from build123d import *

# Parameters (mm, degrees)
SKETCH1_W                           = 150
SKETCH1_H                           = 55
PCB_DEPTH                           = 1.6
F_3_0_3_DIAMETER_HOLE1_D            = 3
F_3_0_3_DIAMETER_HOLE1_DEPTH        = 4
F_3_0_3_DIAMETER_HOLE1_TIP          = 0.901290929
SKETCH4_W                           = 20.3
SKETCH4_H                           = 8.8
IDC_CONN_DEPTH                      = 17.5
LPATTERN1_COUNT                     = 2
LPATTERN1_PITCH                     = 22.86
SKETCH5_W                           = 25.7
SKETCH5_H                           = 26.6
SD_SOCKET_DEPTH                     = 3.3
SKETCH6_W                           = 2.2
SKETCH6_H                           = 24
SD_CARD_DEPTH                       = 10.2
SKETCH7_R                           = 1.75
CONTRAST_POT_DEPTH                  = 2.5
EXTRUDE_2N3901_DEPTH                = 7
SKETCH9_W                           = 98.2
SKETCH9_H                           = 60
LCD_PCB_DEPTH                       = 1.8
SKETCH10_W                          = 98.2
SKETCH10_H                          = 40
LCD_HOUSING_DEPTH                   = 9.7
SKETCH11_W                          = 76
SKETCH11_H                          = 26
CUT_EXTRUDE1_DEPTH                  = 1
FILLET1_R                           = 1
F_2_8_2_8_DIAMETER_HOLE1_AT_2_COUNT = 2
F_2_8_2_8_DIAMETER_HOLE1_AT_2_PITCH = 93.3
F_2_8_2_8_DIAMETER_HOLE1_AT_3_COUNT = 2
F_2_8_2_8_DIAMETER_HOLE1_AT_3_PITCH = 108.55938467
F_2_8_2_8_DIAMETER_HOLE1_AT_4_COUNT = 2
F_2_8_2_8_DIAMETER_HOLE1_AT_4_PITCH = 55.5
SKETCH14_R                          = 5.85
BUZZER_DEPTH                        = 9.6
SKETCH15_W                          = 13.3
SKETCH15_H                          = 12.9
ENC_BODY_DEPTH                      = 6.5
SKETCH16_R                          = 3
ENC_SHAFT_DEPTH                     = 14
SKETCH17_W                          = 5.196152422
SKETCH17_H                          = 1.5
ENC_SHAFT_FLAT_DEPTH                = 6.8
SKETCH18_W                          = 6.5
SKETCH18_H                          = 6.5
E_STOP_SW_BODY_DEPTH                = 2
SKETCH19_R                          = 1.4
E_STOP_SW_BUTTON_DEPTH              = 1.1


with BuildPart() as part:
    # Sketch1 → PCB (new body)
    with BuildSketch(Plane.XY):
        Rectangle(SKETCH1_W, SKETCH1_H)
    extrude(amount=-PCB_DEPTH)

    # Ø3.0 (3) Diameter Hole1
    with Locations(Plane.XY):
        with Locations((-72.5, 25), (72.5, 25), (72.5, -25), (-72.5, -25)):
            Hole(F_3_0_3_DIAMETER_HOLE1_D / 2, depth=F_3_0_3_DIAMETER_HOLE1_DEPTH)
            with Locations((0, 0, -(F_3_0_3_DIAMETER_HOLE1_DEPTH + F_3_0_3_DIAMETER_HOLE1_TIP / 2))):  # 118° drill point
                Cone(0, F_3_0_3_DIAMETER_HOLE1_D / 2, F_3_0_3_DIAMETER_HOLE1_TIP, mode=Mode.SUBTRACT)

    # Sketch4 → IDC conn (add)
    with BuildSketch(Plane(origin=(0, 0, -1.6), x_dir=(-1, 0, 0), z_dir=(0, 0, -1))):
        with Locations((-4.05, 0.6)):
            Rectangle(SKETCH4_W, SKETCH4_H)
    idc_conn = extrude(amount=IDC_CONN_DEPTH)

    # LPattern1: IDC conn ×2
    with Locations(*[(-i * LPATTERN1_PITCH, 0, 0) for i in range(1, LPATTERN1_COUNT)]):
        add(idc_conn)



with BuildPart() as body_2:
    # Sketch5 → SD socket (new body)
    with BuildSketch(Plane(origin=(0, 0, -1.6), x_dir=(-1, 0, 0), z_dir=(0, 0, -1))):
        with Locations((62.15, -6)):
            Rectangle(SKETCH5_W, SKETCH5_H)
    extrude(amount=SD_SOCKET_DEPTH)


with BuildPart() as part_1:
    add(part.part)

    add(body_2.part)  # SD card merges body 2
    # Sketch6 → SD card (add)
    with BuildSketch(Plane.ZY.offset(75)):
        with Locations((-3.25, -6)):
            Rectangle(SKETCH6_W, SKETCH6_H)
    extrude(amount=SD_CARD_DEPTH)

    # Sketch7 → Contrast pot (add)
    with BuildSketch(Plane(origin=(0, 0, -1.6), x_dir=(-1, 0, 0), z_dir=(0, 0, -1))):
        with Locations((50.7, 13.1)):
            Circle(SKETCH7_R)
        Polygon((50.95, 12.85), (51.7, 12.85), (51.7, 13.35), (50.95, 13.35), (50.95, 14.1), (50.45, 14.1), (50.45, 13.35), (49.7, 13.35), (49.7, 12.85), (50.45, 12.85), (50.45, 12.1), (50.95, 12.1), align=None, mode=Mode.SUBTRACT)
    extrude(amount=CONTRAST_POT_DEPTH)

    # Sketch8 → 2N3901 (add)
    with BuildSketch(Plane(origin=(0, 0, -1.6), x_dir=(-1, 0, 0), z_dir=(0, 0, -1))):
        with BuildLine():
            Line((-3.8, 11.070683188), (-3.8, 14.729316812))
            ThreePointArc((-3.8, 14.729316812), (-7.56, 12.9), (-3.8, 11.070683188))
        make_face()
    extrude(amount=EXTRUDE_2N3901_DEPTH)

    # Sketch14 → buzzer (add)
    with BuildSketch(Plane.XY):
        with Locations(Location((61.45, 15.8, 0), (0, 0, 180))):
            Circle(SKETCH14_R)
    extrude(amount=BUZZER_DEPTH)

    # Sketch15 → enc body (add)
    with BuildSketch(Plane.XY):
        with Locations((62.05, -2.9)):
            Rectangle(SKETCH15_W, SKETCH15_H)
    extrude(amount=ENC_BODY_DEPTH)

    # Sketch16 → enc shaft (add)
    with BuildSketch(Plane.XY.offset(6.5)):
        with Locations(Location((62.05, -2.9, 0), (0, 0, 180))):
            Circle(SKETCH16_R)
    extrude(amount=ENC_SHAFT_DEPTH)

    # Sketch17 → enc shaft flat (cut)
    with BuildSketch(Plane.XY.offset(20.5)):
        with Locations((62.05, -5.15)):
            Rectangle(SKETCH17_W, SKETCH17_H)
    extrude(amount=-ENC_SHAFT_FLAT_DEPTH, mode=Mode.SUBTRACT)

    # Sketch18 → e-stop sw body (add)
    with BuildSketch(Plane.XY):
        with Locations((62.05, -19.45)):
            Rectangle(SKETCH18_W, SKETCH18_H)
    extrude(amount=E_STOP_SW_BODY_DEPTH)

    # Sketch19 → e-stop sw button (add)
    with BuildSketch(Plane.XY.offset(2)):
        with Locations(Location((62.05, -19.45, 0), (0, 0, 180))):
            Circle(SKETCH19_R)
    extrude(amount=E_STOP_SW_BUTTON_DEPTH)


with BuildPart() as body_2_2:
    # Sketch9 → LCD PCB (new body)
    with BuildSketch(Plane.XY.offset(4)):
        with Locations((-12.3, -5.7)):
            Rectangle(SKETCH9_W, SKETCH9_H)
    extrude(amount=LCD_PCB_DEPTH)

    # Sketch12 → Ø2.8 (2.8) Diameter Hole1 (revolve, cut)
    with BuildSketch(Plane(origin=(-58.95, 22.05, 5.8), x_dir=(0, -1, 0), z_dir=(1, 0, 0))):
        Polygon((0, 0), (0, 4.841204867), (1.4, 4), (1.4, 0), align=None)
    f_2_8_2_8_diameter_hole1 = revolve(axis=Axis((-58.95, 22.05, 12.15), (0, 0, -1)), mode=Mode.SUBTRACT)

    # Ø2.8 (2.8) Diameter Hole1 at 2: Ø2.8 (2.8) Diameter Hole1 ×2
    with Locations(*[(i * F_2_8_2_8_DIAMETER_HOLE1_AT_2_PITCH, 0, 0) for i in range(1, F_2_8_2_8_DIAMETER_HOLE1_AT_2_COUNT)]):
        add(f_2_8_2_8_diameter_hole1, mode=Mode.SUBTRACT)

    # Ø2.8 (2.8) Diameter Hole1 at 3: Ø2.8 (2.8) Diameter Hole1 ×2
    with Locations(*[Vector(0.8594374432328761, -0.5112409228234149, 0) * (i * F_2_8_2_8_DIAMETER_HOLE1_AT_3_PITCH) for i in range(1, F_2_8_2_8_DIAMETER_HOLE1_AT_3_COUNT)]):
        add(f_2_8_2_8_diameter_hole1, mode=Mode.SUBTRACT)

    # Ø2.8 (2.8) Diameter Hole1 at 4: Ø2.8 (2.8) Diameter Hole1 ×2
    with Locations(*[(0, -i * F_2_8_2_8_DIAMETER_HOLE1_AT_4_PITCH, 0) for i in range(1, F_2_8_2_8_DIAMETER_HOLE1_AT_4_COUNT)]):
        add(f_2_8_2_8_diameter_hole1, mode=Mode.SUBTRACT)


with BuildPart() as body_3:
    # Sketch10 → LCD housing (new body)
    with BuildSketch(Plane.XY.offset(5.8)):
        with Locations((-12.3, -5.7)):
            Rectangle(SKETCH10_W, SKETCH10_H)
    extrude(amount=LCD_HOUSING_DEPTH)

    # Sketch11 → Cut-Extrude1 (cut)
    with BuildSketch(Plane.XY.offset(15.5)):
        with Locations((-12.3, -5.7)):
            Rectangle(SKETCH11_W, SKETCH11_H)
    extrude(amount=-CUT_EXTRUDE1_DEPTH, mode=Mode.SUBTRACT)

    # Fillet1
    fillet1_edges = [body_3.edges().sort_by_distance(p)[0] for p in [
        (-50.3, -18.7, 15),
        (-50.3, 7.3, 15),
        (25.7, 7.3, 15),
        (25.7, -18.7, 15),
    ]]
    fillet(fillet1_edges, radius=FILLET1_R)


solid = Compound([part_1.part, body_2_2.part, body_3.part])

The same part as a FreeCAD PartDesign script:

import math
import FreeCAD as App
import Part
import Sketcher

V = App.Vector
Q = App.Units.Quantity


def edges_at(feature, points):
    """Names of the edges that pass closest to the given points."""
    edges = feature.Shape.Edges
    near = lambda p: min(range(len(edges)), key=lambda i: edges[i].distToShape(Part.Vertex(*p))[0])
    return sorted({f"Edge{near(p) + 1}" for p in points})

doc = App.newDocument("Part")
body = doc.addObject("PartDesign::Body", "Body")

# Sketch on XY plane
sketch1 = doc.addObject("Sketcher::SketchObject", "Sketch")
body.addObject(sketch1)
sketch1.AttachmentSupport = (doc.XY_Plane, [""])
sketch1.MapMode = "FlatFace"
sketch1.addGeometry([
    Part.LineSegment(V(-75, 28, 0), V(-75, -28, 0)),
    Part.LineSegment(V(-75, -28, 0), V(75, -28, 0)),
    Part.LineSegment(V(75, -28, 0), V(75, 28, 0)),
    Part.LineSegment(V(75, 28, 0), V(-75, 28, 0)),
], False)
sketch1.addConstraint([
    Sketcher.Constraint("Coincident", 0, 2, 1, 1),
    Sketcher.Constraint("Coincident", 1, 2, 2, 1),
    Sketcher.Constraint("Coincident", 2, 2, 3, 1),
    Sketcher.Constraint("Coincident", 3, 2, 0, 1),
    Sketcher.Constraint("Vertical", 0),
    Sketcher.Constraint("Horizontal", 1),
    Sketcher.Constraint("Vertical", 2),
    Sketcher.Constraint("Horizontal", 3),
    Sketcher.Constraint("Symmetric", 0, 2, 2, 2, -1, 1),
    Sketcher.Constraint("DistanceX", 1, 1, 1, 2, 150.0),
    Sketcher.Constraint("DistanceY", 0, 2, 0, 1, 55.0),
])
pad1 = doc.addObject("PartDesign::Pad", "Pad")
body.addObject(pad1)
pad1.Profile = sketch1
pad1.Length = 1.6
pad1.Reversed = True

# Sketch on XY plane
sketch2 = doc.addObject("Sketcher::SketchObject", "Sketch001")
body.addObject(sketch2)
sketch2.AttachmentSupport = (doc.XY_Plane, [""])
sketch2.MapMode = "FlatFace"
sketch2.addGeometry([
    Part.Circle(V(-72.5, 25, 0), V(0, 0, 1), 1.5),
    Part.Circle(V(72.5, 25, 0), V(0, 0, 1), 1.5),
    Part.Circle(V(72.5, -25, 0), V(0, 0, 1), 1.5),
    Part.Circle(V(-72.5, -25, 0), V(0, 0, 1), 1.5),
], False)
sketch2.addConstraint([
    Sketcher.Constraint("Equal", 0, 1),
    Sketcher.Constraint("Equal", 1, 2),
    Sketcher.Constraint("Equal", 2, 3),
    Sketcher.Constraint("Symmetric", 0, 3, 2, 3, -1, 1),
    Sketcher.Constraint("Symmetric", 1, 3, 3, 3, -1, 1),
    Sketcher.Constraint("Symmetric", 0, 3, 1, 3, -2),
    Sketcher.Constraint("Diameter", 0, 3.0),
    Sketcher.Constraint("DistanceY", -1, 1, 0, 3, 25.0),
    Sketcher.Constraint("DistanceX", 0, 3, 1, 3, 145.0),
])
doc.recompute()
hole = doc.addObject("PartDesign::Hole", "Hole")
body.addObject(hole)
hole.Profile = sketch2
hole.ThreadType = "None"
hole.Diameter = 3
hole.DepthType = "Dimension"
hole.Depth = 4
hole.DrillPoint = "Angled"
hole.DrillPointAngle = 118

# Sketch on XY plane
sketch3 = doc.addObject("Sketcher::SketchObject", "Sketch002")
body.addObject(sketch3)
sketch3.AttachmentSupport = (doc.XY_Plane, [""])
sketch3.MapMode = "FlatFace"
sketch3.AttachmentOffset = App.Placement(V(0, 0, -1.6), App.Rotation())
sketch3.addGeometry([
    Part.LineSegment(V(14, 5, 0), V(14, -4, 0)),
    Part.LineSegment(V(14, -4, 0), V(-6, -4, 0)),
    Part.LineSegment(V(-6, -4, 0), V(-6, 5, 0)),
    Part.LineSegment(V(-6, 5, 0), V(14, 5, 0)),
], False)
sketch3.addConstraint([
    Sketcher.Constraint("Coincident", 0, 2, 1, 1),
    Sketcher.Constraint("Coincident", 1, 2, 2, 1),
    Sketcher.Constraint("Coincident", 2, 2, 3, 1),
    Sketcher.Constraint("Coincident", 3, 2, 0, 1),
    Sketcher.Constraint("Vertical", 0),
    Sketcher.Constraint("Horizontal", 1),
    Sketcher.Constraint("Vertical", 2),
    Sketcher.Constraint("Horizontal", 3),
    Sketcher.Constraint("DistanceX", 1, 2, 1, 1, 20.3),
    Sketcher.Constraint("DistanceY", 0, 2, 0, 1, 8.8),
    Sketcher.Constraint("DistanceY", -1, 1, 2, 2, 5.0),
    Sketcher.Constraint("DistanceX", -1, 1, 0, 2, 14.2),
])
pad2 = doc.addObject("PartDesign::Pad", "Pad001")
body.addObject(pad2)
pad2.Profile = sketch3
pad2.Length = 17.5
pad2.Reversed = True
doc.recompute()

linearpattern = doc.addObject("PartDesign::LinearPattern", "LinearPattern")
body.addObject(linearpattern)
linearpattern.Originals = [pad2]
linearpattern.Direction = (doc.X_Axis, [""])
linearpattern.Mode = "offset"
linearpattern.Offset = 22.86
linearpattern.Occurrences = 2
linearpattern.Reversed = True
body.Tip = linearpattern
body2 = doc.addObject("PartDesign::Body", "Body001")

# Sketch on XY plane
sketch4 = doc.addObject("Sketcher::SketchObject", "Sketch003")
body2.addObject(sketch4)
sketch4.AttachmentSupport = (doc.getObject("XY_Plane001"), [""])
sketch4.MapMode = "FlatFace"
sketch4.AttachmentOffset = App.Placement(V(0, 0, -1.6), App.Rotation())
sketch4.addGeometry([
    Part.LineSegment(V(-49, 7, 0), V(-49, -19, 0)),
    Part.LineSegment(V(-49, -19, 0), V(-75, -19, 0)),
    Part.LineSegment(V(-75, -19, 0), V(-75, 7, 0)),
    Part.LineSegment(V(-75, 7, 0), V(-49, 7, 0)),
], False)
sketch4.addConstraint([
    Sketcher.Constraint("Coincident", 0, 2, 1, 1),
    Sketcher.Constraint("Coincident", 1, 2, 2, 1),
    Sketcher.Constraint("Coincident", 2, 2, 3, 1),
    Sketcher.Constraint("Coincident", 3, 2, 0, 1),
    Sketcher.Constraint("Vertical", 0),
    Sketcher.Constraint("Horizontal", 1),
    Sketcher.Constraint("Vertical", 2),
    Sketcher.Constraint("Horizontal", 3),
    Sketcher.Constraint("DistanceX", 1, 2, 1, 1, 25.7),
    Sketcher.Constraint("DistanceY", 0, 2, 0, 1, 26.6),
    Sketcher.Constraint("DistanceX", 1, 2, -1, 1, 75.0),
    Sketcher.Constraint("DistanceY", 0, 2, -1, 1, 19.3),
])
pad3 = doc.addObject("PartDesign::Pad", "Pad002")
body2.addObject(pad3)
pad3.Profile = sketch4
pad3.Length = 3.3
pad3.Reversed = True
doc.recompute()

boolean = doc.addObject("PartDesign::Boolean", "Boolean")
body.addObject(boolean)
boolean.Type = "Fuse"
boolean.addObjects([body2])

# Sketch on YZ plane
sketch5 = doc.addObject("Sketcher::SketchObject", "Sketch004")
body.addObject(sketch5)
sketch5.AttachmentSupport = (doc.YZ_Plane, [""])
sketch5.MapMode = "FlatFace"
sketch5.AttachmentOffset = App.Placement(V(0, 0, -75), App.Rotation())
sketch5.addGeometry([
    Part.LineSegment(V(6, -4.3, 0), V(-18, -4.3, 0)),
    Part.LineSegment(V(-18, -4.3, 0), V(-18, -2.1, 0)),
    Part.LineSegment(V(-18, -2.1, 0), V(6, -2.1, 0)),
    Part.LineSegment(V(6, -2.1, 0), V(6, -4.3, 0)),
], False)
sketch5.addConstraint([
    Sketcher.Constraint("Coincident", 0, 2, 1, 1),
    Sketcher.Constraint("Coincident", 1, 2, 2, 1),
    Sketcher.Constraint("Coincident", 2, 2, 3, 1),
    Sketcher.Constraint("Coincident", 3, 2, 0, 1),
    Sketcher.Constraint("Horizontal", 0),
    Sketcher.Constraint("Vertical", 1),
    Sketcher.Constraint("Horizontal", 2),
    Sketcher.Constraint("Vertical", 3),
    Sketcher.Constraint("DistanceX", 0, 2, 0, 1, 24.0),
    Sketcher.Constraint("DistanceY", 1, 1, 1, 2, 2.2),
    Sketcher.Constraint("DistanceX", 0, 2, -1, 1, 18.0),
    Sketcher.Constraint("DistanceY", 0, 2, -1, 1, 4.35),
])
pad4 = doc.addObject("PartDesign::Pad", "Pad003")
body.addObject(pad4)
pad4.Profile = sketch5
pad4.Length = 10.2
pad4.Reversed = True

# Sketch on XY plane
sketch6 = doc.addObject("Sketcher::SketchObject", "Sketch005")
body.addObject(sketch6)
sketch6.AttachmentSupport = (doc.XY_Plane, [""])
sketch6.MapMode = "FlatFace"
sketch6.AttachmentOffset = App.Placement(V(0, 0, -1.6), App.Rotation())
sketch6.addGeometry([
    Part.Circle(V(-50.7, 13.1, 0), V(0, 0, 1), 1.8),  # 0
    Part.LineSegment(V(-51.7, 12.8, 0), V(-51, 12.8, 0)),  # 1
    Part.LineSegment(V(-51, 12.8, 0), V(-51, 12.1, 0)),  # 2
    Part.LineSegment(V(-51, 12.1, 0), V(-50.5, 12.1, 0)),  # 3
    Part.LineSegment(V(-50.5, 12.1, 0), V(-50.5, 12.8, 0)),  # 4
    Part.LineSegment(V(-50.5, 12.8, 0), V(-49.7, 12.8, 0)),  # 5
    Part.LineSegment(V(-49.7, 12.8, 0), V(-49.7, 13.3, 0)),  # 6
    Part.LineSegment(V(-49.7, 13.3, 0), V(-50.5, 13.3, 0)),  # 7
    Part.LineSegment(V(-50.5, 13.3, 0), V(-50.5, 14.1, 0)),  # 8
    Part.LineSegment(V(-50.5, 14.1, 0), V(-51, 14.1, 0)),  # 9
    Part.LineSegment(V(-51, 14.1, 0), V(-51, 13.3, 0)),  # 10
    Part.LineSegment(V(-51, 13.3, 0), V(-51.7, 13.3, 0)),  # 11
    Part.LineSegment(V(-51.7, 13.3, 0), V(-51.7, 12.8, 0)),  # 12
], False)
sketch6.addConstraint([
    Sketcher.Constraint("Coincident", 1, 2, 2, 1),
    Sketcher.Constraint("Coincident", 2, 2, 3, 1),
    Sketcher.Constraint("Coincident", 3, 2, 4, 1),
    Sketcher.Constraint("Coincident", 4, 2, 5, 1),
    Sketcher.Constraint("Coincident", 5, 2, 6, 1),
    Sketcher.Constraint("Coincident", 6, 2, 7, 1),
    Sketcher.Constraint("Coincident", 7, 2, 8, 1),
    Sketcher.Constraint("Coincident", 8, 2, 9, 1),
    Sketcher.Constraint("Coincident", 9, 2, 10, 1),
    Sketcher.Constraint("Coincident", 10, 2, 11, 1),
    Sketcher.Constraint("Coincident", 11, 2, 12, 1),
    Sketcher.Constraint("Coincident", 12, 2, 1, 1),
    Sketcher.Constraint("Horizontal", 1),
    Sketcher.Constraint("Vertical", 2),
    Sketcher.Constraint("Horizontal", 3),
    Sketcher.Constraint("Vertical", 4),
    Sketcher.Constraint("Horizontal", 5),
    Sketcher.Constraint("Vertical", 6),
    Sketcher.Constraint("Horizontal", 7),
    Sketcher.Constraint("Vertical", 8),
    Sketcher.Constraint("Horizontal", 9),
    Sketcher.Constraint("Vertical", 10),
    Sketcher.Constraint("Horizontal", 11),
    Sketcher.Constraint("Vertical", 12),
    Sketcher.Constraint("Horizontal", 1, 2, 4, 2),
    Sketcher.Constraint("Horizontal", 7, 2, 10, 2),
    Sketcher.Constraint("Vertical", 4, 2, 7, 2),
    Sketcher.Constraint("Vertical", 2, 2, 9, 2),
    Sketcher.Constraint("Equal", 1, 5),
    Sketcher.Constraint("Equal", 11, 2),
    Sketcher.Constraint("Equal", 9, 6),
    Sketcher.Constraint("Equal", 4, 8),
    Sketcher.Constraint("Diameter", 0, 3.5),
    Sketcher.Constraint("DistanceX", 3, 1, 3, 2, 0.5),
    Sketcher.Constraint("DistanceY", 2, 2, 0, 3, 1.0),
    Sketcher.Constraint("DistanceX", 0, 3, 5, 2, 1.0),
    Sketcher.Constraint("DistanceY", 0, 3, 8, 2, 1.0),
    Sketcher.Constraint("DistanceX", 0, 3, -1, 1, 50.7),
    Sketcher.Constraint("DistanceY", -1, 1, 0, 3, 13.1),
])
pad5 = doc.addObject("PartDesign::Pad", "Pad004")
body.addObject(pad5)
pad5.Profile = sketch6
pad5.Length = 2.5
pad5.Reversed = True

# Sketch on XY plane
sketch7 = doc.addObject("Sketcher::SketchObject", "Sketch006")
body.addObject(sketch7)
sketch7.AttachmentSupport = (doc.XY_Plane, [""])
sketch7.MapMode = "FlatFace"
sketch7.AttachmentOffset = App.Placement(V(0, 0, -1.6), App.Rotation())
sketch7.addGeometry([
    Part.LineSegment(V(3.8, 11.1, 0), V(3.8, 14.7, 0)),
    Part.ArcOfCircle(Part.Circle(V(5.2, 12.9, 0), V(0, 0, 1), 2.3), math.radians(-128), math.radians(128)),
], False)
sketch7.addConstraint([
    Sketcher.Constraint("Coincident", 0, 1, 1, 1),
    Sketcher.Constraint("Coincident", 1, 2, 0, 2),
    Sketcher.Constraint("Vertical", 0),
    Sketcher.Constraint("Radius", 1, 2.325),
    Sketcher.Constraint("DistanceY", -1, 1, 1, 3, 12.9),
    Sketcher.Constraint("DistanceX", -1, 1, 0, 1, 3.8),
    Sketcher.Constraint("DistanceX", -1, 1, 1, 3, 5.235),
])
pad6 = doc.addObject("PartDesign::Pad", "Pad005")
body.addObject(pad6)
pad6.Profile = sketch7
pad6.Length = 7
pad6.Reversed = True

# Sketch on XY plane
sketch8 = doc.addObject("Sketcher::SketchObject", "Sketch007")
body.addObject(sketch8)
sketch8.AttachmentSupport = (doc.XY_Plane, [""])
sketch8.MapMode = "FlatFace"
sketch8.addGeometry(Part.Circle(V(61, 16, 0), V(0, 0, 1), 6), False)
sketch8.addConstraint([
    Sketcher.Constraint("Diameter", 0, 11.7),
    Sketcher.Constraint("DistanceY", -1, 1, 0, 3, 15.8),
    Sketcher.Constraint("DistanceX", -1, 1, 0, 3, 61.45),
])
pad7 = doc.addObject("PartDesign::Pad", "Pad006")
body.addObject(pad7)
pad7.Profile = sketch8
pad7.Length = 9.6

# Sketch on XY plane
sketch9 = doc.addObject("Sketcher::SketchObject", "Sketch008")
body.addObject(sketch9)
sketch9.AttachmentSupport = (doc.XY_Plane, [""])
sketch9.MapMode = "FlatFace"
sketch9.addGeometry([
    Part.LineSegment(V(55, 4, 0), V(55, -9, 0)),
    Part.LineSegment(V(55, -9, 0), V(69, -9, 0)),
    Part.LineSegment(V(69, -9, 0), V(69, 4, 0)),
    Part.LineSegment(V(69, 4, 0), V(55, 4, 0)),
], False)
sketch9.addConstraint([
    Sketcher.Constraint("Coincident", 0, 2, 1, 1),
    Sketcher.Constraint("Coincident", 1, 2, 2, 1),
    Sketcher.Constraint("Coincident", 2, 2, 3, 1),
    Sketcher.Constraint("Coincident", 3, 2, 0, 1),
    Sketcher.Constraint("Vertical", 0),
    Sketcher.Constraint("Horizontal", 1),
    Sketcher.Constraint("Vertical", 2),
    Sketcher.Constraint("Horizontal", 3),
    Sketcher.Constraint("DistanceX", 1, 1, 1, 2, 13.3),
    Sketcher.Constraint("DistanceY", 0, 2, 0, 1, 12.9),
    Sketcher.Constraint("DistanceX", -1, 1, 0, 2, 55.4),
    Sketcher.Constraint("DistanceY", 0, 2, -1, 1, 9.35),
])
pad8 = doc.addObject("PartDesign::Pad", "Pad007")
body.addObject(pad8)
pad8.Profile = sketch9
pad8.Length = 6.5

# Sketch on XY plane
sketch10 = doc.addObject("Sketcher::SketchObject", "Sketch009")
body.addObject(sketch10)
sketch10.AttachmentSupport = (doc.XY_Plane, [""])
sketch10.MapMode = "FlatFace"
sketch10.AttachmentOffset = App.Placement(V(0, 0, 6.5), App.Rotation())
sketch10.addGeometry(Part.Circle(V(62, -2.9, 0), V(0, 0, 1), 3), False)
sketch10.addConstraint([
    Sketcher.Constraint("Diameter", 0, 6.0),
    Sketcher.Constraint("DistanceY", 0, 3, -1, 1, 2.9),
    Sketcher.Constraint("DistanceX", -1, 1, 0, 3, 62.05),
])
pad9 = doc.addObject("PartDesign::Pad", "Pad008")
body.addObject(pad9)
pad9.Profile = sketch10
pad9.Length = 14

# Sketch on XY plane
sketch11 = doc.addObject("Sketcher::SketchObject", "Sketch010")
body.addObject(sketch11)
sketch11.AttachmentSupport = (doc.XY_Plane, [""])
sketch11.MapMode = "FlatFace"
sketch11.AttachmentOffset = App.Placement(V(0, 0, 20.5), App.Rotation())
sketch11.addGeometry([
    Part.LineSegment(V(59.5, -4.4, 0), V(59.5, -5.9, 0)),
    Part.LineSegment(V(59.5, -5.9, 0), V(64.6, -5.9, 0)),
    Part.LineSegment(V(64.6, -5.9, 0), V(64.6, -4.4, 0)),
    Part.LineSegment(V(64.6, -4.4, 0), V(59.5, -4.4, 0)),
], False)
sketch11.addConstraint([
    Sketcher.Constraint("Coincident", 0, 2, 1, 1),
    Sketcher.Constraint("Coincident", 1, 2, 2, 1),
    Sketcher.Constraint("Coincident", 2, 2, 3, 1),
    Sketcher.Constraint("Coincident", 3, 2, 0, 1),
    Sketcher.Constraint("Vertical", 0),
    Sketcher.Constraint("Horizontal", 1),
    Sketcher.Constraint("Vertical", 2),
    Sketcher.Constraint("Horizontal", 3),
    Sketcher.Constraint("DistanceY", 0, 2, 0, 1, 1.5),
    Sketcher.Constraint("DistanceY", 0, 2, -1, 1, 5.9),
    Sketcher.Constraint("DistanceX", 1, 1, 1, 2, 5.196152),
    Sketcher.Constraint("DistanceX", -1, 1, 0, 2, 59.451924),
])
pocket1 = doc.addObject("PartDesign::Pocket", "Pocket")
body.addObject(pocket1)
pocket1.Profile = sketch11
pocket1.Length = 6.8

# Sketch on XY plane
sketch12 = doc.addObject("Sketcher::SketchObject", "Sketch011")
body.addObject(sketch12)
sketch12.AttachmentSupport = (doc.XY_Plane, [""])
sketch12.MapMode = "FlatFace"
sketch12.addGeometry([
    Part.LineSegment(V(59, -16, 0), V(59, -23, 0)),
    Part.LineSegment(V(59, -23, 0), V(65, -23, 0)),
    Part.LineSegment(V(65, -23, 0), V(65, -16, 0)),
    Part.LineSegment(V(65, -16, 0), V(59, -16, 0)),
], False)
sketch12.addConstraint([
    Sketcher.Constraint("Coincident", 0, 2, 1, 1),
    Sketcher.Constraint("Coincident", 1, 2, 2, 1),
    Sketcher.Constraint("Coincident", 2, 2, 3, 1),
    Sketcher.Constraint("Coincident", 3, 2, 0, 1),
    Sketcher.Constraint("Vertical", 0),
    Sketcher.Constraint("Horizontal", 1),
    Sketcher.Constraint("Vertical", 2),
    Sketcher.Constraint("Horizontal", 3),
    Sketcher.Constraint("Equal", 3, 0),
    Sketcher.Constraint("DistanceX", 1, 1, 1, 2, 6.5),
    Sketcher.Constraint("DistanceX", -1, 1, 0, 2, 58.8),
    Sketcher.Constraint("DistanceY", 0, 2, -1, 1, 22.7),
])
pad10 = doc.addObject("PartDesign::Pad", "Pad009")
body.addObject(pad10)
pad10.Profile = sketch12
pad10.Length = 2

# Sketch on XY plane
sketch13 = doc.addObject("Sketcher::SketchObject", "Sketch012")
body.addObject(sketch13)
sketch13.AttachmentSupport = (doc.XY_Plane, [""])
sketch13.MapMode = "FlatFace"
sketch13.AttachmentOffset = App.Placement(V(0, 0, 2), App.Rotation())
sketch13.addGeometry(Part.Circle(V(62, -19.4, 0), V(0, 0, 1), 1.4), False)
sketch13.addConstraint([
    Sketcher.Constraint("Diameter", 0, 2.8),
    Sketcher.Constraint("DistanceX", -1, 1, 0, 3, 62.05),
    Sketcher.Constraint("DistanceY", 0, 3, -1, 1, 19.45),
])
pad11 = doc.addObject("PartDesign::Pad", "Pad010")
body.addObject(pad11)
pad11.Profile = sketch13
pad11.Length = 1.1
body3 = doc.addObject("PartDesign::Body", "Body002")

# Sketch on XY plane
sketch14 = doc.addObject("Sketcher::SketchObject", "Sketch013")
body3.addObject(sketch14)
sketch14.AttachmentSupport = (doc.getObject("XY_Plane002"), [""])
sketch14.MapMode = "FlatFace"
sketch14.AttachmentOffset = App.Placement(V(0, 0, 4), App.Rotation())
sketch14.addGeometry([
    Part.LineSegment(V(-61, 24, 0), V(-61, -36, 0)),
    Part.LineSegment(V(-61, -36, 0), V(37, -36, 0)),
    Part.LineSegment(V(37, -36, 0), V(37, 24, 0)),
    Part.LineSegment(V(37, 24, 0), V(-61, 24, 0)),
], False)
sketch14.addConstraint([
    Sketcher.Constraint("Coincident", 0, 2, 1, 1),
    Sketcher.Constraint("Coincident", 1, 2, 2, 1),
    Sketcher.Constraint("Coincident", 2, 2, 3, 1),
    Sketcher.Constraint("Coincident", 3, 2, 0, 1),
    Sketcher.Constraint("Vertical", 0),
    Sketcher.Constraint("Horizontal", 1),
    Sketcher.Constraint("Vertical", 2),
    Sketcher.Constraint("Horizontal", 3),
    Sketcher.Constraint("DistanceY", 0, 2, 0, 1, 60.0),
    Sketcher.Constraint("DistanceX", 1, 1, 1, 2, 98.2),
    Sketcher.Constraint("DistanceX", 0, 2, -1, 1, 61.4),
    Sketcher.Constraint("DistanceY", 0, 2, -1, 1, 35.7),
])
pad12 = doc.addObject("PartDesign::Pad", "Pad011")
body3.addObject(pad12)
pad12.Profile = sketch14
pad12.Length = 1.8

# Sketch on YZ plane
sketch15 = doc.addObject("Sketcher::SketchObject", "Sketch014")
body3.addObject(sketch15)
sketch15.AttachmentSupport = (doc.getObject("YZ_Plane002"), [""])
sketch15.MapMode = "FlatFace"
sketch15.AttachmentOffset = App.Placement(V(0, 0, -58.95), App.Rotation())
sketch15.addGeometry([
    Part.LineSegment(V(22.1, 1, 0), V(22.1, 5.8, 0)),
    Part.LineSegment(V(22.1, 5.8, 0), V(20.6, 5.8, 0)),
    Part.LineSegment(V(20.6, 5.8, 0), V(20.6, 1.8, 0)),
    Part.LineSegment(V(20.6, 1.8, 0), V(22.1, 1, 0)),
], False)
sketch15.addGeometry(Part.LineSegment(V(22.1, 5.8, 0), V(22.1, 1, 0)), True)  # axis
sketch15.addConstraint([
    Sketcher.Constraint("Coincident", 0, 2, 1, 1),
    Sketcher.Constraint("Coincident", 1, 2, 2, 1),
    Sketcher.Constraint("Coincident", 2, 2, 3, 1),
    Sketcher.Constraint("Coincident", 3, 2, 0, 1),
    Sketcher.Constraint("Vertical", 0),
    Sketcher.Constraint("Horizontal", 1),
    Sketcher.Constraint("Vertical", 2),
    Sketcher.Constraint("Vertical", 4),
    Sketcher.Constraint("Coincident", 4, 1, 0, 2),
    Sketcher.Constraint("Equal", 0, 4),
    Sketcher.Constraint("DistanceY", 2, 2, 2, 1, 4.0),
    Sketcher.Constraint("Angle", 3, Q("-31 deg")),
    Sketcher.Constraint("DistanceX", 1, 2, 1, 1, 1.4),
    Sketcher.Constraint("DistanceY", -1, 1, 0, 2, 5.8),
    Sketcher.Constraint("DistanceX", -1, 1, 0, 2, 22.05),
])
groove = doc.addObject("PartDesign::Groove", "Groove")
body3.addObject(groove)
groove.Profile = sketch15
groove.ReferenceAxis = (sketch15, ["Axis0"])
groove.Angle = 360
doc.recompute()

linearpattern2 = doc.addObject("PartDesign::LinearPattern", "LinearPattern001")
body3.addObject(linearpattern2)
linearpattern2.Originals = [groove]
linearpattern2.Direction = (doc.getObject("X_Axis002"), [""])
linearpattern2.Mode = "offset"
linearpattern2.Offset = 93.3
linearpattern2.Occurrences = 2
body3.Tip = linearpattern2
doc.recompute()

datumline = doc.addObject("PartDesign::Line", "DatumLine")
body3.addObject(datumline)
datumline.Placement = App.Placement(V(0, 0, 0), App.Rotation(V(0, 0, 1), V(0.859437443, -0.511240923, 0)))
linearpattern3 = doc.addObject("PartDesign::LinearPattern", "LinearPattern002")
body3.addObject(linearpattern3)
linearpattern3.Originals = [groove]
linearpattern3.Direction = (datumline, [""])
linearpattern3.Mode = "offset"
linearpattern3.Offset = 108.559385
linearpattern3.Occurrences = 2
body3.Tip = linearpattern3
doc.recompute()

linearpattern4 = doc.addObject("PartDesign::LinearPattern", "LinearPattern003")
body3.addObject(linearpattern4)
linearpattern4.Originals = [groove]
linearpattern4.Direction = (doc.getObject("Y_Axis002"), [""])
linearpattern4.Mode = "offset"
linearpattern4.Offset = 55.5
linearpattern4.Occurrences = 2
linearpattern4.Reversed = True
body3.Tip = linearpattern4
body4 = doc.addObject("PartDesign::Body", "Body003")

# Sketch on XY plane
sketch16 = doc.addObject("Sketcher::SketchObject", "Sketch015")
body4.addObject(sketch16)
sketch16.AttachmentSupport = (doc.getObject("XY_Plane003"), [""])
sketch16.MapMode = "FlatFace"
sketch16.AttachmentOffset = App.Placement(V(0, 0, 5.8), App.Rotation())
sketch16.addGeometry([
    Part.LineSegment(V(-61, 14, 0), V(-61, -26, 0)),
    Part.LineSegment(V(-61, -26, 0), V(37, -26, 0)),
    Part.LineSegment(V(37, -26, 0), V(37, 14, 0)),
    Part.LineSegment(V(37, 14, 0), V(-61, 14, 0)),
], False)
sketch16.addConstraint([
    Sketcher.Constraint("Coincident", 0, 2, 1, 1),
    Sketcher.Constraint("Coincident", 1, 2, 2, 1),
    Sketcher.Constraint("Coincident", 2, 2, 3, 1),
    Sketcher.Constraint("Coincident", 3, 2, 0, 1),
    Sketcher.Constraint("Vertical", 0),
    Sketcher.Constraint("Horizontal", 1),
    Sketcher.Constraint("Vertical", 2),
    Sketcher.Constraint("Horizontal", 3),
    Sketcher.Constraint("DistanceY", 0, 2, 0, 1, 40.0),
    Sketcher.Constraint("DistanceX", 1, 1, 1, 2, 98.2),
    Sketcher.Constraint("DistanceX", 0, 2, -1, 1, 61.4),
    Sketcher.Constraint("DistanceY", 0, 2, -1, 1, 25.7),
])
pad13 = doc.addObject("PartDesign::Pad", "Pad012")
body4.addObject(pad13)
pad13.Profile = sketch16
pad13.Length = 9.7

# Sketch on XY plane
sketch17 = doc.addObject("Sketcher::SketchObject", "Sketch016")
body4.addObject(sketch17)
sketch17.AttachmentSupport = (doc.getObject("XY_Plane003"), [""])
sketch17.MapMode = "FlatFace"
sketch17.AttachmentOffset = App.Placement(V(0, 0, 15.5), App.Rotation())
sketch17.addGeometry([
    Part.LineSegment(V(-50, 7, 0), V(-50, -19, 0)),
    Part.LineSegment(V(-50, -19, 0), V(26, -19, 0)),
    Part.LineSegment(V(26, -19, 0), V(26, 7, 0)),
    Part.LineSegment(V(26, 7, 0), V(-50, 7, 0)),
], False)
sketch17.addConstraint([
    Sketcher.Constraint("Coincident", 0, 2, 1, 1),
    Sketcher.Constraint("Coincident", 1, 2, 2, 1),
    Sketcher.Constraint("Coincident", 2, 2, 3, 1),
    Sketcher.Constraint("Coincident", 3, 2, 0, 1),
    Sketcher.Constraint("Vertical", 0),
    Sketcher.Constraint("Horizontal", 1),
    Sketcher.Constraint("Vertical", 2),
    Sketcher.Constraint("Horizontal", 3),
    Sketcher.Constraint("DistanceX", 1, 1, 1, 2, 76.0),
    Sketcher.Constraint("DistanceY", 0, 2, 0, 1, 26.0),
    Sketcher.Constraint("DistanceX", 0, 2, -1, 1, 50.3),
    Sketcher.Constraint("DistanceY", 0, 2, -1, 1, 18.7),
])
pocket2 = doc.addObject("PartDesign::Pocket", "Pocket001")
body4.addObject(pocket2)
pocket2.Profile = sketch17
pocket2.Length = 1
doc.recompute()

fillet = doc.addObject("PartDesign::Fillet", "Fillet")
body4.addObject(fillet)
fillet.Base = (pocket2, edges_at(pocket2, [
    (-50.3, -18.7, 15),
    (-50.3, 7.3, 15),
    (25.7, 7.3, 15),
    (25.7, -18.7, 15),
]))
fillet.Radius = 1

doc.recompute()
